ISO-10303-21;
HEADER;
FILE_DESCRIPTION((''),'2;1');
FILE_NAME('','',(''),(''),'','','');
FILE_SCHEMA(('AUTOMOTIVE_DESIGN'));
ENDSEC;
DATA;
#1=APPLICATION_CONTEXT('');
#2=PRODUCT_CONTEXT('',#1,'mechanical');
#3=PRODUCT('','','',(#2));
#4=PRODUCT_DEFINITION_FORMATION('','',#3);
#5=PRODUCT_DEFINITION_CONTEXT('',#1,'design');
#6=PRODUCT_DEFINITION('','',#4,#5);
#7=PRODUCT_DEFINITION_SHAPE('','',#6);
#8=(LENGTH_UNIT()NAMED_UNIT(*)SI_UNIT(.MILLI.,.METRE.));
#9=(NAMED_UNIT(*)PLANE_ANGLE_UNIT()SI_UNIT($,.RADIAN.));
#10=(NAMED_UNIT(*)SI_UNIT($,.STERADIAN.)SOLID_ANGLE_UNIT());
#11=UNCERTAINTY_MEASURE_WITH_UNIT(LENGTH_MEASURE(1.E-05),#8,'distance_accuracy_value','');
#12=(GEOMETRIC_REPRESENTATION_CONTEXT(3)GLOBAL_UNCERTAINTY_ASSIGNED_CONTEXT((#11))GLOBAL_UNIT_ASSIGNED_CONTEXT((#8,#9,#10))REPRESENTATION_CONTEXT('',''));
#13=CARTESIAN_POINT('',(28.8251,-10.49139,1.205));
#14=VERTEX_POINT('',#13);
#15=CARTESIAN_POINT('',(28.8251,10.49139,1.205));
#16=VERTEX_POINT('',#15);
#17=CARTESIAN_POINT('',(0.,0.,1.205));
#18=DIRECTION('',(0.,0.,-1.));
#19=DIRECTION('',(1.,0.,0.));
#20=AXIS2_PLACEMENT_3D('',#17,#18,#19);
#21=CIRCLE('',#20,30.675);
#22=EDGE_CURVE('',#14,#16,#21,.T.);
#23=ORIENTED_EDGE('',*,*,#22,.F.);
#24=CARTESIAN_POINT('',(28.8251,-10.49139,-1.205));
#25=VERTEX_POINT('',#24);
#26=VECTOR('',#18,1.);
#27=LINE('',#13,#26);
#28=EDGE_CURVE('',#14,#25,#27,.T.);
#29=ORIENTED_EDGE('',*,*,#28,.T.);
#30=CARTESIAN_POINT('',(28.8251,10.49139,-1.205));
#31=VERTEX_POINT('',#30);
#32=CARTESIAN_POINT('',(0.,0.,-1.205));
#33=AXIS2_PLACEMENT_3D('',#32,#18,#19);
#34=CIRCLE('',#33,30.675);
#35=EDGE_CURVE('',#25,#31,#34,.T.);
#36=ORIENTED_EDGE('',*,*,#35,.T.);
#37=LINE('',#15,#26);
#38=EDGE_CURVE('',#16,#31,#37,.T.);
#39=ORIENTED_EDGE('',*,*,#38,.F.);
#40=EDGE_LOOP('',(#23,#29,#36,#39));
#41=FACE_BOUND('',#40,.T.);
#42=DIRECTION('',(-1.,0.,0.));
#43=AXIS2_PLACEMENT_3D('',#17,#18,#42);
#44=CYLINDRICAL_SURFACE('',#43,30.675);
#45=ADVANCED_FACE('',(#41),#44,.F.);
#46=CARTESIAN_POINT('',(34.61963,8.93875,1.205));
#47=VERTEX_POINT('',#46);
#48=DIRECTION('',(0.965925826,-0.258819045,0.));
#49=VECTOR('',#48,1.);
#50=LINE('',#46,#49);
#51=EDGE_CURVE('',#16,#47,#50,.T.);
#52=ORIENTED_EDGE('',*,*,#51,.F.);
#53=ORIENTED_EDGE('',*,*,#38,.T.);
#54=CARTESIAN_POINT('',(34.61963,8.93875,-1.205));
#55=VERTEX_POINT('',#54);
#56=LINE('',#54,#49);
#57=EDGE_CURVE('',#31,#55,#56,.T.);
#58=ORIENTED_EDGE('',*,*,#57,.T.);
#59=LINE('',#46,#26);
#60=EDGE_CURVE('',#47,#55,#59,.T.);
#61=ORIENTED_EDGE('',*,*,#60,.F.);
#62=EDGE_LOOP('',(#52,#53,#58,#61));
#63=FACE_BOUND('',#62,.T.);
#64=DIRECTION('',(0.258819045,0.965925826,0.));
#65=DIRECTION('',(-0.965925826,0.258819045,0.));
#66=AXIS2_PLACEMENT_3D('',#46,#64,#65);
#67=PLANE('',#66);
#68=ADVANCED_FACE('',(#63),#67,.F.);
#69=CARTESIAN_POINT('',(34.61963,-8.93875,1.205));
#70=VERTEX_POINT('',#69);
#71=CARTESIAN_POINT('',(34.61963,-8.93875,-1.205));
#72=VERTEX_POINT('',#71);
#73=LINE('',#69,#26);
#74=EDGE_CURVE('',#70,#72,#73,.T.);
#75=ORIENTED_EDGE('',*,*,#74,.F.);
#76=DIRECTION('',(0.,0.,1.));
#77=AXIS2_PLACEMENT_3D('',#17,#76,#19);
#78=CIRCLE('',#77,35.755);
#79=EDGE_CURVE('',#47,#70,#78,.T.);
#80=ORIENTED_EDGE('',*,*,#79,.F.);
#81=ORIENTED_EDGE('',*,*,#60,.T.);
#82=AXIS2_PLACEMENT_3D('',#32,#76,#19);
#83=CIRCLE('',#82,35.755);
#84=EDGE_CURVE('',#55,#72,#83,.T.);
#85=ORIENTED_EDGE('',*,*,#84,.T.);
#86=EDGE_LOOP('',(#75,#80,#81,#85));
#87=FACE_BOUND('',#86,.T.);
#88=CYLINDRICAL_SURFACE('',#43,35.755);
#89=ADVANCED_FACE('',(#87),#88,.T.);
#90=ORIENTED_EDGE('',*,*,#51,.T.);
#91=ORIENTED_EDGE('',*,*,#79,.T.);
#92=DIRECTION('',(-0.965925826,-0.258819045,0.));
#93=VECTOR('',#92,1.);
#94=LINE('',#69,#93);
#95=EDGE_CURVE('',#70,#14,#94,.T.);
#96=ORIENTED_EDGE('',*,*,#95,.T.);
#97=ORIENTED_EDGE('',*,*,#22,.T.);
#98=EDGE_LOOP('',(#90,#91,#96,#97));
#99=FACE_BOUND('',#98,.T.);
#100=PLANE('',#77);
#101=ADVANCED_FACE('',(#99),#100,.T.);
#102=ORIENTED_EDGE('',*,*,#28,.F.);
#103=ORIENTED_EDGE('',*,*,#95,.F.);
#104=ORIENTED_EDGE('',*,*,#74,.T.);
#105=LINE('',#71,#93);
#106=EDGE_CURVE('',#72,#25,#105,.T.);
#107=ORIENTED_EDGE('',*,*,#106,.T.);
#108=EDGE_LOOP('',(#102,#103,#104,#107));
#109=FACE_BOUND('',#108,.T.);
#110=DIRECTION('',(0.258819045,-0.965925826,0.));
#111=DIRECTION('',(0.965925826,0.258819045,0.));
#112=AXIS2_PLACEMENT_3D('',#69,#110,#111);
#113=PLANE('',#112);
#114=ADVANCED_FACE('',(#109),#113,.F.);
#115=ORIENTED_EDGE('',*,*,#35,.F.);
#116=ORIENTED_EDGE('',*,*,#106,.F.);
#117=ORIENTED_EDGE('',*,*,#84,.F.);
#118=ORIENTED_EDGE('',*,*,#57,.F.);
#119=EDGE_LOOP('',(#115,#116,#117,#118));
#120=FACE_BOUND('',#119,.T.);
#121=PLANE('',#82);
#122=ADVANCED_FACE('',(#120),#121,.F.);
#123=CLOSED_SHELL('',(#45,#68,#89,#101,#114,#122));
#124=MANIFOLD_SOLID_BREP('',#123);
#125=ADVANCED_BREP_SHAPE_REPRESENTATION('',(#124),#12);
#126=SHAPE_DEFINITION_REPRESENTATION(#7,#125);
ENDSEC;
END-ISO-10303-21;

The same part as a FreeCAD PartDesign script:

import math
import FreeCAD as App
import Part
import Sketcher
from FreeCAD import Vector
Q = App.Units.Quantity

doc = App.newDocument("Part")
body = doc.addObject("PartDesign::Body", "Body")

# Sketch on XY plane
sketch1 = doc.addObject("Sketcher::SketchObject", "Sketch")
body.addObject(sketch1)
sketch1.AttachmentSupport = (doc.XY_Plane, [""])
sketch1.MapMode = "FlatFace"
sketch1.addGeometry([
    Part.LineSegment(Vector(29, 10, 0), Vector(35, 9, 0)),
    Part.ArcOfCircle(Part.Circle(Vector(0, 0, 0), Vector(0, 0, 1), 36), math.radians(14), math.radians(346)),
    Part.LineSegment(Vector(35, -9, 0), Vector(29, -10, 0)),
    Part.ArcOfCircle(Part.Circle(Vector(0, 0, 0), Vector(0, 0, 1), 31), math.radians(20), math.radians(340)),
], False)
sketch1.addConstraint([
    Sketcher.Constraint("Coincident", 0, 2, 1, 1),
    Sketcher.Constraint("Coincident", 1, 2, 2, 1),
    Sketcher.Constraint("Coincident", 2, 2, 3, 2),
    Sketcher.Constraint("Coincident", 3, 1, 0, 1),
    Sketcher.Constraint("Coincident", 1, 3, -1, 1),
    Sketcher.Constraint("Coincident", 3, 3, -1, 1),
    Sketcher.Constraint("Vertical", 0, 2, 1, 2),
    Sketcher.Constraint("Vertical", 2, 2, 3, 1),
    Sketcher.Constraint("Angle", 0, Q("-15 deg")),
    Sketcher.Constraint("Radius", 1, 35.755),
    Sketcher.Constraint("Radius", 3, 30.675),
    Sketcher.Constraint("DistanceX", -1, 1, 2, 2, 28.8251),
])
pad1 = doc.addObject("PartDesign::Pad", "Pad")
body.addObject(pad1)
pad1.Profile = sketch1
pad1.Length = 2.41
pad1.Midplane = True

doc.recompute()
